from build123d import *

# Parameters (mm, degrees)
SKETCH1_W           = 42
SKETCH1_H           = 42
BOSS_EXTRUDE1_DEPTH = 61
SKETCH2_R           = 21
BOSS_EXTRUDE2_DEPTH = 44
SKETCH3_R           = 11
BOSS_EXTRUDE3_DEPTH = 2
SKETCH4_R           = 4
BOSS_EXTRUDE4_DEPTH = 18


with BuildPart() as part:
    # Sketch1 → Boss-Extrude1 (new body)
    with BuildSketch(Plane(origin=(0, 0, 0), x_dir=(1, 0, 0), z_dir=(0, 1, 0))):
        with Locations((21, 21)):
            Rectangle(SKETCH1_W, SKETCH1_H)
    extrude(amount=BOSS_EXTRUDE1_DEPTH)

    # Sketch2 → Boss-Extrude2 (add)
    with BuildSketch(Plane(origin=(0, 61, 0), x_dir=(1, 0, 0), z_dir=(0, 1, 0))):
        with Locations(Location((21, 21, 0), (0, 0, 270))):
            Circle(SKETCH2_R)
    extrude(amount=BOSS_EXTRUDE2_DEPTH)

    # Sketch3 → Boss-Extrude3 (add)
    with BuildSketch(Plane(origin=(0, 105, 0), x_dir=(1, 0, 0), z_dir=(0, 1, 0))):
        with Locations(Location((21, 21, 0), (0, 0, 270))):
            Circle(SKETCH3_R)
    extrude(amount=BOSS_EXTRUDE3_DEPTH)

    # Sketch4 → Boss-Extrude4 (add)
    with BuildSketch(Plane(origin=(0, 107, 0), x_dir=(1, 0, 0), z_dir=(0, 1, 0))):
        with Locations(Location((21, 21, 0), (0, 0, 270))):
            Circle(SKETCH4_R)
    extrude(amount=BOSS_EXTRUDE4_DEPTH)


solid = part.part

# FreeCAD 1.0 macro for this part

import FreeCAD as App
import Part
import Sketcher

V = App.Vector
Q = App.Units.Quantity


def add_polygon(sketch, points):
    """Adds a closed chain of lines whose ends are joined by coincident constraints."""
    first, n = sketch.GeometryCount, len(points)
    for a, b in zip(points, points[1:] + points[:1]):
        sketch.addGeometry(Part.LineSegment(App.Vector(*a, 0), App.Vector(*b, 0)), False)
    for i in range(n):
        sketch.addConstraint(Sketcher.Constraint("Coincident", first + i, 2, first + (i + 1) % n, 1))

doc = App.newDocument("Part")
params = doc.addObject("Spreadsheet::Sheet", "Params")
for row, (alias, value) in enumerate([
    ("sketch1_width", "42 mm"),
    ("pad1_length", "61 mm"),
    ("sketch2_diameter", "42 mm"),
    ("pad2_length", "44 mm"),
    ("sketch3_diameter", "22 mm"),
    ("pad3_length", "2 mm"),
    ("sketch4_diameter", "8 mm"),
    ("pad4_length", "18 mm"),
], start=1):
    params.set(f"A{row}", alias)
    params.set(f"B{row}", "=" + value)
    params.setAlias(f"B{row}", alias)

body = doc.addObject("PartDesign::Body", "Body")

# Sketch on XZ plane
sketch1 = body.newObject("Sketcher::SketchObject", "Sketch")
sketch1.AttachmentSupport = (doc.getObject("XZ_Plane"), [""])
sketch1.MapMode = "FlatFace"
add_polygon(sketch1, [(0, -42), (0, 0), (42, 0), (42, -42)])  # lines 0-3
sketch1.addConstraint([
    Sketcher.Constraint("Vertical", 0),
    Sketcher.Constraint("Horizontal", 1),
    Sketcher.Constraint("Vertical", 2),
    Sketcher.Constraint("Horizontal", 3),
    Sketcher.Constraint("Coincident", 0, 2, -1, 1),
    Sketcher.Constraint("Equal", 3, 0),
    Sketcher.Constraint("DistanceX", 1, 1, 1, 2, Q("42 mm")),
])
sketch1.setExpression("Constraints[10]", "Params.sketch1_width")
pad1 = body.newObject("PartDesign::Pad", "Pad")
pad1.Profile = sketch1
pad1.setExpression("Length", "Params.pad1_length")
pad1.Reversed = True

# Sketch on XZ plane
sketch2 = body.newObject("Sketcher::SketchObject", "Sketch001")
sketch2.AttachmentSupport = (doc.getObject("XZ_Plane"), [""])
sketch2.MapMode = "FlatFace"
sketch2.AttachmentOffset = App.Placement(V(0, 0, -61), App.Rotation())
sketch2.addGeometry(Part.Circle(V(21, -21, 0), V(0, 0, 1), 21), False)
sketch2.addConstraint([
    Sketcher.Constraint("Diameter", 0, Q("42 mm")),
    Sketcher.Constraint("DistanceX", -1, 1, 0, 3, Q("21 mm")),
    Sketcher.Constraint("DistanceY", 0, 3, -1, 1, Q("21 mm")),
])
sketch2.setExpression("Constraints[0]", "Params.sketch2_diameter")
pad2 = body.newObject("PartDesign::Pad", "Pad001")
pad2.Profile = sketch2
pad2.setExpression("Length", "Params.pad2_length")
pad2.Reversed = True

# Sketch on XZ plane
sketch3 = body.newObject("Sketcher::SketchObject", "Sketch002")
sketch3.AttachmentSupport = (doc.getObject("XZ_Plane"), [""])
sketch3.MapMode = "FlatFace"
sketch3.AttachmentOffset = App.Placement(V(0, 0, -105), App.Rotation())
sketch3.addGeometry(Part.Circle(V(21, -21, 0), V(0, 0, 1), 11), False)
sketch3.addConstraint([
    Sketcher.Constraint("Diameter", 0, Q("22 mm")),
    Sketcher.Constraint("DistanceX", -1, 1, 0, 3, Q("21 mm")),
    Sketcher.Constraint("DistanceY", 0, 3, -1, 1, Q("21 mm")),
])
sketch3.setExpression("Constraints[0]", "Params.sketch3_diameter")
pad3 = body.newObject("PartDesign::Pad", "Pad002")
pad3.Profile = sketch3
pad3.setExpression("Length", "Params.pad3_length")
pad3.Reversed = True

# Sketch on XZ plane
sketch4 = body.newObject("Sketcher::SketchObject", "Sketch003")
sketch4.AttachmentSupport = (doc.getObject("XZ_Plane"), [""])
sketch4.MapMode = "FlatFace"
sketch4.AttachmentOffset = App.Placement(V(0, 0, -107), App.Rotation())
sketch4.addGeometry(Part.Circle(V(21, -21, 0), V(0, 0, 1), 4), False)
sketch4.addConstraint([
    Sketcher.Constraint("Diameter", 0, Q("8 mm")),
    Sketcher.Constraint("DistanceX", -1, 1, 0, 3, Q("21 mm")),
    Sketcher.Constraint("DistanceY", 0, 3, -1, 1, Q("21 mm")),
])
sketch4.setExpression("Constraints[0]", "Params.sketch4_diameter")
pad4 = body.newObject("PartDesign::Pad", "Pad003")
pad4.Profile = sketch4
pad4.setExpression("Length", "Params.pad4_length")
pad4.Reversed = True

doc.recompute()
